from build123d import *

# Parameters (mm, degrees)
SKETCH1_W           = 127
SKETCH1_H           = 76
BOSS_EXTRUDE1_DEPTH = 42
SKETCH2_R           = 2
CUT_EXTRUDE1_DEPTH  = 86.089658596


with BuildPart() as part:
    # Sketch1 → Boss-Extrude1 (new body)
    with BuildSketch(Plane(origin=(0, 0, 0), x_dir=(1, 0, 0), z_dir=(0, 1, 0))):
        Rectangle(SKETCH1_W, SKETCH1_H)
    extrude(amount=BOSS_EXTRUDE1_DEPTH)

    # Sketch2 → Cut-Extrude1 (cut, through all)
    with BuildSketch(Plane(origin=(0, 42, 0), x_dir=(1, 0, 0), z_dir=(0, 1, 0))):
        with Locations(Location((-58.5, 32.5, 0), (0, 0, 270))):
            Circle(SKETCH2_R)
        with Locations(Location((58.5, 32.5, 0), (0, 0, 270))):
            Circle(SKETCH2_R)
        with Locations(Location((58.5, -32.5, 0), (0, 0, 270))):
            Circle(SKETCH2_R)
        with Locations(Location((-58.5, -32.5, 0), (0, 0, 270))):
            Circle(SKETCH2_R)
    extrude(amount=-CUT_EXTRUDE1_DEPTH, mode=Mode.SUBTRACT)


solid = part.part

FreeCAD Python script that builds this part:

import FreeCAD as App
import Part
import Sketcher
from FreeCAD import Vector

doc = App.newDocument("Part")
body = doc.addObject("PartDesign::Body", "Body")

sketch1 = doc.addObject("Sketcher::SketchObject", "Sketch")
body.addObject(sketch1)
sketch1.AttachmentSupport = (doc.XZ_Plane, [""])
sketch1.MapMode = "FlatFace"
sketch1.addGeometry([
    Part.LineSegment(Vector(-64, -38, 0), Vector(-64, 38, 0)),
    Part.LineSegment(Vector(-64, 38, 0), Vector(64, 38, 0)),
    Part.LineSegment(Vector(64, 38, 0), Vector(64, -38, 0)),
    Part.LineSegment(Vector(64, -38, 0), Vector(-64, -38, 0)),
], False)
sketch1.addConstraint([
    Sketcher.Constraint("Coincident", 0, 2, 1, 1),
    Sketcher.Constraint("Coincident", 1, 2, 2, 1),
    Sketcher.Constraint("Coincident", 2, 2, 3, 1),
    Sketcher.Constraint("Coincident", 3, 2, 0, 1),
    Sketcher.Constraint("Vertical", 0),
    Sketcher.Constraint("Horizontal", 1),
    Sketcher.Constraint("Vertical", 2),
    Sketcher.Constraint("Horizontal", 3),
    Sketcher.Constraint("Symmetric", 0, 2, 2, 2, -1, 1),
    Sketcher.Constraint("DistanceX", 1, 1, 1, 2, 127.0),
    Sketcher.Constraint("DistanceY", 0, 1, 0, 2, 76.0),
])
pad1 = doc.addObject("PartDesign::Pad", "Pad")
body.addObject(pad1)
pad1.Profile = sketch1
pad1.Length = 42
pad1.Reversed = True

sketch2 = doc.addObject("Sketcher::SketchObject", "Sketch001")
body.addObject(sketch2)
sketch2.AttachmentSupport = (doc.XZ_Plane, [""])
sketch2.MapMode = "FlatFace"
sketch2.AttachmentOffset = App.Placement(Vector(0, 0, -42), App.Rotation())
sketch2.addGeometry([
    Part.Circle(Vector(-58.5, -32.5, 0), Vector(0, 0, 1), 2),
    Part.Circle(Vector(58.5, -32.5, 0), Vector(0, 0, 1), 2),
    Part.Circle(Vector(58.5, 32.5, 0), Vector(0, 0, 1), 2),
    Part.Circle(Vector(-58.5, 32.5, 0), Vector(0, 0, 1), 2),
], False)
sketch2.addConstraint([
    Sketcher.Constraint("Equal", 0, 1),
    Sketcher.Constraint("Equal", 1, 2),
    Sketcher.Constraint("Equal", 2, 3),
    Sketcher.Constraint("Symmetric", 0, 3, 2, 3, -1, 1),
    Sketcher.Constraint("Symmetric", 1, 3, 3, 3, -1, 1),
    Sketcher.Constraint("Symmetric", 0, 3, 1, 3, -2),
    Sketcher.Constraint("Diameter", 0, 4.0),
    Sketcher.Constraint("DistanceX", 0, 3, 1, 3, 117.0),
    Sketcher.Constraint("DistanceY", 1, 3, 2, 3, 65.0),
])
pocket1 = doc.addObject("PartDesign::Pocket", "Pocket")
body.addObject(pocket1)
pocket1.Profile = sketch2
pocket1.Type = "ThroughAll"
pocket1.Reversed = True

doc.recompute()
